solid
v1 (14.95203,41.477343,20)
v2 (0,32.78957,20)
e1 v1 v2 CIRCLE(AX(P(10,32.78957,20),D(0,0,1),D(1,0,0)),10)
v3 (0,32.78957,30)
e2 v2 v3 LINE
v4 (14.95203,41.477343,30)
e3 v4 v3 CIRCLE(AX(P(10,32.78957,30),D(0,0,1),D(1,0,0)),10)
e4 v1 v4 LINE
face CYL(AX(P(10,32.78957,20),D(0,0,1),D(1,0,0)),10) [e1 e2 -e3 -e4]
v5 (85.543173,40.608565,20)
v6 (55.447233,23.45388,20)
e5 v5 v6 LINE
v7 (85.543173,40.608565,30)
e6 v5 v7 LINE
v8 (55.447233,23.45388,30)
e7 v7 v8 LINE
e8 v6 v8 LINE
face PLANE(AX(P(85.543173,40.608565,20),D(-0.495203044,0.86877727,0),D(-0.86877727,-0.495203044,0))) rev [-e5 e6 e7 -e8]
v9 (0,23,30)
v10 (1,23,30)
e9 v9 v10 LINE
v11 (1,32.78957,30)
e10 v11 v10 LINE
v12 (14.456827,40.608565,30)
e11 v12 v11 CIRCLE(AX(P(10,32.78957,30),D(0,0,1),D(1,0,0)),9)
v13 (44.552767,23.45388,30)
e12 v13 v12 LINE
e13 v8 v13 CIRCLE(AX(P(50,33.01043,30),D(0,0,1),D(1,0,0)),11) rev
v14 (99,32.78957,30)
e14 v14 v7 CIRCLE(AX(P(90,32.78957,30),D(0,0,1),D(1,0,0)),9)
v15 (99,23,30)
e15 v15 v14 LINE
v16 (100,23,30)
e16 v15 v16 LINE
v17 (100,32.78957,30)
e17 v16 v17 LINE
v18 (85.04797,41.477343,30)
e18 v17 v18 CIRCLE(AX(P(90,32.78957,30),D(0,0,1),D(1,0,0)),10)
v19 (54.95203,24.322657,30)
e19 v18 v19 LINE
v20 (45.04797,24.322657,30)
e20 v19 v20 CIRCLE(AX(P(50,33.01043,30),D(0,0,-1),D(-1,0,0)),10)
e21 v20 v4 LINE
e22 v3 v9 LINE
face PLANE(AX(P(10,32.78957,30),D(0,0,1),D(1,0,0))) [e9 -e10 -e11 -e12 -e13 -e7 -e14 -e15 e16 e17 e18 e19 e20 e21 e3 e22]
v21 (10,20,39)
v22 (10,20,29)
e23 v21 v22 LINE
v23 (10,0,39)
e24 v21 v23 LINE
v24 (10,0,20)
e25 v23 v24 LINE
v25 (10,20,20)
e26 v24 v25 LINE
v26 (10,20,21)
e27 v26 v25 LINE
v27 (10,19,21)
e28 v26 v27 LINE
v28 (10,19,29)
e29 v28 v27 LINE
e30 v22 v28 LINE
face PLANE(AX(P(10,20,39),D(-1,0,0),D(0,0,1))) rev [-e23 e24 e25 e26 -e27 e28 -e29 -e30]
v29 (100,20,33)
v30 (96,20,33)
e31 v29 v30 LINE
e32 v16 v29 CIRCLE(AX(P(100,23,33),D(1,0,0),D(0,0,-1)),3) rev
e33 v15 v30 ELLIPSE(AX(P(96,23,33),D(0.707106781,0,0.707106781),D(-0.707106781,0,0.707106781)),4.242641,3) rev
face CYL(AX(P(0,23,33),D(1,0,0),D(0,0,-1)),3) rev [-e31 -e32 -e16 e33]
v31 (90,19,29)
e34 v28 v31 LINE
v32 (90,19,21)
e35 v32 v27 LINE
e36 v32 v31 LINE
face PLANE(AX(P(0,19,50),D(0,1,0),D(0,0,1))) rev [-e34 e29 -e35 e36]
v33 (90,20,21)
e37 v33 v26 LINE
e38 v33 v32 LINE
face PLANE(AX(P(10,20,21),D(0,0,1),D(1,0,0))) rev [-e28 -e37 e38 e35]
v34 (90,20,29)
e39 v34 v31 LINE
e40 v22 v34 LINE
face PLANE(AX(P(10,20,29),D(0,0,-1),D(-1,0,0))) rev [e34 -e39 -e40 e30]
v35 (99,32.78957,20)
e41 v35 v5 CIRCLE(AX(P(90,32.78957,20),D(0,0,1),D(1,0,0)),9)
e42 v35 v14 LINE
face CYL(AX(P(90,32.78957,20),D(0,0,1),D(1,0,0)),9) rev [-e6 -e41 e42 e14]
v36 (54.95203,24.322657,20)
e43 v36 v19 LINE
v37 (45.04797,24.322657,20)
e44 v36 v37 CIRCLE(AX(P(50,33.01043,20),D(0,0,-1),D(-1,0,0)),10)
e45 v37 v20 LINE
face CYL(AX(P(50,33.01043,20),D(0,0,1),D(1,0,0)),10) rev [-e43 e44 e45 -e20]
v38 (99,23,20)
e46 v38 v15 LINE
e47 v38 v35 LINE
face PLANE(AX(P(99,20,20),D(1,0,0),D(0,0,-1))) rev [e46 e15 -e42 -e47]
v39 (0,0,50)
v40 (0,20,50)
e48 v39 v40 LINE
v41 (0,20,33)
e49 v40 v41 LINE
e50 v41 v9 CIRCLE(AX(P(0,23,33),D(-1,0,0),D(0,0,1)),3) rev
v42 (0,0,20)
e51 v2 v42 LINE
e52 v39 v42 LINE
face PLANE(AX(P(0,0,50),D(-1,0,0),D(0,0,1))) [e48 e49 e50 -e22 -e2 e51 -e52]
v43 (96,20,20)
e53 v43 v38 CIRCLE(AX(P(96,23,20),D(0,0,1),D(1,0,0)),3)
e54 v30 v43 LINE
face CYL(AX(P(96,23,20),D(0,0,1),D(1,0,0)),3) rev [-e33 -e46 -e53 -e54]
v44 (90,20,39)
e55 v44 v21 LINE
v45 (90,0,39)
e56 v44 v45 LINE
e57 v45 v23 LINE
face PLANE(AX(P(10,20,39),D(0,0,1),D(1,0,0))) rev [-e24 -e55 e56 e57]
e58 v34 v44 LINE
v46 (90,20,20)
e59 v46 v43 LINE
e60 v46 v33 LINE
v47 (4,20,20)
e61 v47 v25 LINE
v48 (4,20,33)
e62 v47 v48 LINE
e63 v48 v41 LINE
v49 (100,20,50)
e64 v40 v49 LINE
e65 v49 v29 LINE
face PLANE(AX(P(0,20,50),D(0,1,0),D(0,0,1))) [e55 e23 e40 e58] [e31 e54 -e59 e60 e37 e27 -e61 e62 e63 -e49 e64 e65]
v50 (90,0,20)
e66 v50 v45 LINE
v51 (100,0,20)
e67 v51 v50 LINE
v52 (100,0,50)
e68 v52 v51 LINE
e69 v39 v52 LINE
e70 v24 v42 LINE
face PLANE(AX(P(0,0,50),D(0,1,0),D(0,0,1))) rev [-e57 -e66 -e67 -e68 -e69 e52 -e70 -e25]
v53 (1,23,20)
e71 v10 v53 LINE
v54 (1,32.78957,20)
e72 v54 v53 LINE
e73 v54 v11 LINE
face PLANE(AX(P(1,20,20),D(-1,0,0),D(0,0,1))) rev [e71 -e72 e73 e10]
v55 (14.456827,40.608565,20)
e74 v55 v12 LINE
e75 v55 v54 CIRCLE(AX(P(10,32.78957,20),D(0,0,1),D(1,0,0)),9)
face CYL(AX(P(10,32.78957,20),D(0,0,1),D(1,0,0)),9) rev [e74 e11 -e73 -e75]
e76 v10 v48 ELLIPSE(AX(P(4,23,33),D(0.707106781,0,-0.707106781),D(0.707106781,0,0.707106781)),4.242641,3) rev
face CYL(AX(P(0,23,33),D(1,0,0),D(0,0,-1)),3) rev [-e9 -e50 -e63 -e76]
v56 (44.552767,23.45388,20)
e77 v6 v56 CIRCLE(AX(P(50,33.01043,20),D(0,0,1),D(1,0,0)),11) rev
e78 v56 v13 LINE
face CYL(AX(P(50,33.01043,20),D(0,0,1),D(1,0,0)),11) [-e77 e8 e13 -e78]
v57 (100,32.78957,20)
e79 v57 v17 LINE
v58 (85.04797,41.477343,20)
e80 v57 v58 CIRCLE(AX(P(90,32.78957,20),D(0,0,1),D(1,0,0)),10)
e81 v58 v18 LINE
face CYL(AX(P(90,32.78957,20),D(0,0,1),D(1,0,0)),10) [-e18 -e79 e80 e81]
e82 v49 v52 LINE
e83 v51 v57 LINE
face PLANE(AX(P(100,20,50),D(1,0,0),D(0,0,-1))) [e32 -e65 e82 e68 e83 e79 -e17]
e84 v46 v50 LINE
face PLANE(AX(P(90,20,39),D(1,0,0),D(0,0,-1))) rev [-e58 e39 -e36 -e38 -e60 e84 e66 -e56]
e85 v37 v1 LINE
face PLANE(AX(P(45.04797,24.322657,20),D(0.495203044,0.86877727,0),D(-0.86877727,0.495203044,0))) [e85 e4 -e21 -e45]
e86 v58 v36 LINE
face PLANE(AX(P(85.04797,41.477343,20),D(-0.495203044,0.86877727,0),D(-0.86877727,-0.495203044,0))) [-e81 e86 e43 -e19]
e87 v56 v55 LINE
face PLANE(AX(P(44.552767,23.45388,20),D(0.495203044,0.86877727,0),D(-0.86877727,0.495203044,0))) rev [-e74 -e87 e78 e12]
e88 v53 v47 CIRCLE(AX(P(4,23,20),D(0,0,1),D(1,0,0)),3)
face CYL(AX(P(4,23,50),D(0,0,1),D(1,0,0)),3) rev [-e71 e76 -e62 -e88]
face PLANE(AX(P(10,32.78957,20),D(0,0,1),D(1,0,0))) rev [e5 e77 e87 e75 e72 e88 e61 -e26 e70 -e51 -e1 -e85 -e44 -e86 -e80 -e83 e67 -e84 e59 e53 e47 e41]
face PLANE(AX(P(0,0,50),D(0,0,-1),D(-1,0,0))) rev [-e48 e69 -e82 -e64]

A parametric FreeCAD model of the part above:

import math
import FreeCAD as App
import Part
import Sketcher
from FreeCAD import Vector
Q = App.Units.Quantity


def edges_at(feature, points):
    """Names of the edges that pass closest to the given points."""
    edges = feature.Shape.Edges
    near = lambda p: min(range(len(edges)), key=lambda i: edges[i].distToShape(Part.Vertex(*p))[0])
    return sorted({f"Edge{near(p) + 1}" for p in points})

doc = App.newDocument("Part")
body = doc.addObject("PartDesign::Body", "Body")

sketch1 = body.newObject("Sketcher::SketchObject", "Sketch")
sketch1.AttachmentSupport = (doc.getObject("XY_Plane"), [""])
sketch1.MapMode = "FlatFace"
sketch1.addGeometry(Part.LineSegment(Vector(0, 20, 0), Vector(0, 0, 0)), False)
sketch1.addGeometry(Part.LineSegment(Vector(0, 0, 0), Vector(100, 0, 0)), False)
sketch1.addGeometry(Part.LineSegment(Vector(100, 0, 0), Vector(100, 20, 0)), False)
sketch1.addGeometry(Part.LineSegment(Vector(100, 20, 0), Vector(0, 20, 0)), False)
sketch1.addConstraint(Sketcher.Constraint("Coincident", 0, 2, 1, 1))
sketch1.addConstraint(Sketcher.Constraint("Coincident", 1, 2, 2, 1))
sketch1.addConstraint(Sketcher.Constraint("Coincident", 2, 2, 3, 1))
sketch1.addConstraint(Sketcher.Constraint("Coincident", 3, 2, 0, 1))
sketch1.addConstraint(Sketcher.Constraint("Vertical", 0))
sketch1.addConstraint(Sketcher.Constraint("Horizontal", 1))
sketch1.addConstraint(Sketcher.Constraint("Vertical", 2))
sketch1.addConstraint(Sketcher.Constraint("Horizontal", 3))
sketch1.addConstraint(Sketcher.Constraint("Coincident", 0, 2, -1, 1))
sketch1.addConstraint(Sketcher.Constraint("DistanceX", 1, 1, 1, 2, Q("100 mm")))
sketch1.addConstraint(Sketcher.Constraint("DistanceY", 0, 2, 0, 1, Q("20 mm")))
pad1 = body.newObject("PartDesign::Pad", "Pad")
pad1.Profile = sketch1
pad1.Length = 50

sketch2 = body.newObject("Sketcher::SketchObject", "Sketch001")
sketch2.AttachmentSupport = (doc.getObject("XZ_Plane"), [""])
sketch2.MapMode = "FlatFace"
sketch2.addGeometry(Part.LineSegment(Vector(10, 39, 0), Vector(10, 29, 0)), False)
sketch2.addGeometry(Part.LineSegment(Vector(10, 29, 0), Vector(90, 29, 0)), False)
sketch2.addGeometry(Part.LineSegment(Vector(90, 29, 0), Vector(90, 39, 0)), False)
sketch2.addGeometry(Part.LineSegment(Vector(90, 39, 0), Vector(10, 39, 0)), False)
sketch2.addGeometry(Part.LineSegment(Vector(10, 21, 0), Vector(10, 11, 0)), False)
sketch2.addGeometry(Part.LineSegment(Vector(10, 11, 0), Vector(90, 11, 0)), False)
sketch2.addGeometry(Part.LineSegment(Vector(90, 11, 0), Vector(90, 21, 0)), False)
sketch2.addGeometry(Part.LineSegment(Vector(90, 21, 0), Vector(10, 21, 0)), False)
sketch2.addConstraint(Sketcher.Constraint("Coincident", 0, 2, 1, 1))
sketch2.addConstraint(Sketcher.Constraint("Coincident", 1, 2, 2, 1))
sketch2.addConstraint(Sketcher.Constraint("Coincident", 2, 2, 3, 1))
sketch2.addConstraint(Sketcher.Constraint("Coincident", 3, 2, 0, 1))
sketch2.addConstraint(Sketcher.Constraint("Coincident", 4, 2, 5, 1))
sketch2.addConstraint(Sketcher.Constraint("Coincident", 5, 2, 6, 1))
sketch2.addConstraint(Sketcher.Constraint("Coincident", 6, 2, 7, 1))
sketch2.addConstraint(Sketcher.Constraint("Coincident", 7, 2, 4, 1))
sketch2.addConstraint(Sketcher.Constraint("Vertical", 0))
sketch2.addConstraint(Sketcher.Constraint("Horizontal", 1))
sketch2.addConstraint(Sketcher.Constraint("Vertical", 2))
sketch2.addConstraint(Sketcher.Constraint("Horizontal", 3))
sketch2.addConstraint(Sketcher.Constraint("Vertical", 4))
sketch2.addConstraint(Sketcher.Constraint("Horizontal", 5))
sketch2.addConstraint(Sketcher.Constraint("Vertical", 6))
sketch2.addConstraint(Sketcher.Constraint("Horizontal", 7))
sketch2.addConstraint(Sketcher.Constraint("Vertical", 3, 2, 4, 2))
sketch2.addConstraint(Sketcher.Constraint("Vertical", 2, 2, 5, 2))
sketch2.addConstraint(Sketcher.Constraint("Equal", 2, 4))
sketch2.addConstraint(Sketcher.Constraint("DistanceX", 1, 1, 1, 2, Q("80 mm")))
sketch2.addConstraint(Sketcher.Constraint("DistanceY", 0, 2, 0, 1, Q("10 mm")))
sketch2.addConstraint(Sketcher.Constraint("DistanceX", -1, 1, 0, 2, Q("10 mm")))
sketch2.addConstraint(Sketcher.Constraint("DistanceY", -1, 1, 0, 2, Q("29 mm")))
sketch2.addConstraint(Sketcher.Constraint("DistanceY", -1, 1, 4, 2, Q("11 mm")))
pocket1 = body.newObject("PartDesign::Pocket", "Pocket")
pocket1.Profile = sketch2
pocket1.Type = "ThroughAll"

sketch3 = body.newObject("Sketcher::SketchObject", "Sketch002")
sketch3.AttachmentSupport = (doc.getObject("XZ_Plane"), [""])
sketch3.MapMode = "FlatFace"
sketch3.addGeometry(Part.LineSegment(Vector(10, 34, 0), Vector(10, 16, 0)), False)
sketch3.addGeometry(Part.LineSegment(Vector(10, 16, 0), Vector(90, 16, 0)), False)
sketch3.addGeometry(Part.LineSegment(Vector(90, 16, 0), Vector(90, 34, 0)), False)
sketch3.addGeometry(Part.LineSegment(Vector(90, 34, 0), Vector(10, 34, 0)), False)
sketch3.addConstraint(Sketcher.Constraint("Coincident", 0, 2, 1, 1))
sketch3.addConstraint(Sketcher.Constraint("Coincident", 1, 2, 2, 1))
sketch3.addConstraint(Sketcher.Constraint("Coincident", 2, 2, 3, 1))
sketch3.addConstraint(Sketcher.Constraint("Coincident", 3, 2, 0, 1))
sketch3.addConstraint(Sketcher.Constraint("Vertical", 0))
sketch3.addConstraint(Sketcher.Constraint("Horizontal", 1))
sketch3.addConstraint(Sketcher.Constraint("Vertical", 2))
sketch3.addConstraint(Sketcher.Constraint("Horizontal", 3))
sketch3.addConstraint(Sketcher.Constraint("DistanceX", 1, 1, 1, 2, Q("80 mm")))
sketch3.addConstraint(Sketcher.Constraint("DistanceY", 0, 2, 0, 1, Q("18 mm")))
sketch3.addConstraint(Sketcher.Constraint("DistanceX", -1, 1, 0, 2, Q("10 mm")))
sketch3.addConstraint(Sketcher.Constraint("DistanceY", -1, 1, 0, 2, Q("16 mm")))
pocket2 = body.newObject("PartDesign::Pocket", "Pocket001")
pocket2.Profile = sketch3
pocket2.Length = 19

sketch4 = body.newObject("Sketcher::SketchObject", "Sketch003")
sketch4.AttachmentSupport = (doc.getObject("XY_Plane"), [""])
sketch4.MapMode = "FlatFace"
sketch4.AttachmentOffset = App.Placement(Vector(0, 0, 25), App.Rotation())
sketch4.addGeometry(Part.LineSegment(Vector(0, 32.8, 0), Vector(0, 20, 0)), False)
sketch4.addGeometry(Part.LineSegment(Vector(0, 20, 0), Vector(1, 20, 0)), False)
sketch4.addGeometry(Part.LineSegment(Vector(1, 20, 0), Vector(1, 32.8, 0)), False)
sketch4.addGeometry(Part.ArcOfCircle(Part.Circle(Vector(10, 32.8, 0), Vector(0, 0, 1), 9), math.radians(60), math.radians(180)), False)
sketch4.addGeometry(Part.LineSegment(Vector(14.5, 40.6, 0), Vector(44.6, 23.5, 0)), False)
sketch4.addGeometry(Part.ArcOfCircle(Part.Circle(Vector(50, 33, 0), Vector(0, 0, 1), 11), math.radians(-120), math.radians(-60)), False)
sketch4.addGeometry(Part.LineSegment(Vector(55.4, 23.5, 0), Vector(85.5, 40.6, 0)), False)
sketch4.addGeometry(Part.ArcOfCircle(Part.Circle(Vector(90, 32.8, 0), Vector(0, 0, 1), 9), math.radians(0), math.radians(120)), False)
sketch4.addGeometry(Part.LineSegment(Vector(99, 32.8, 0), Vector(99, 20, 0)), False)
sketch4.addGeometry(Part.LineSegment(Vector(99, 20, 0), Vector(100, 20, 0)), False)
sketch4.addGeometry(Part.LineSegment(Vector(100, 20, 0), Vector(100, 32.8, 0)), False)
sketch4.addGeometry(Part.ArcOfCircle(Part.Circle(Vector(90, 32.8, 0), Vector(0, 0, 1), 10), math.radians(0), math.radians(120)), False)
sketch4.addGeometry(Part.LineSegment(Vector(85, 41.5, 0), Vector(55, 24.3, 0)), False)
sketch4.addGeometry(Part.ArcOfCircle(Part.Circle(Vector(50, 33, 0), Vector(0, 0, 1), 10), math.radians(-120), math.radians(-60)), False)
sketch4.addGeometry(Part.LineSegment(Vector(45, 24.3, 0), Vector(15, 41.5, 0)), False)
sketch4.addGeometry(Part.ArcOfCircle(Part.Circle(Vector(10, 32.8, 0), Vector(0, 0, 1), 10), math.radians(60), math.radians(180)), False)
sketch4.addConstraint(Sketcher.Constraint("Coincident", 0, 2, 1, 1))
sketch4.addConstraint(Sketcher.Constraint("Coincident", 1, 2, 2, 1))
sketch4.addConstraint(Sketcher.Constraint("Tangent", 2, 2, 3, 2))
sketch4.addConstraint(Sketcher.Constraint("Tangent", 3, 1, 4, 1))
sketch4.addConstraint(Sketcher.Constraint("Tangent", 4, 2, 5, 1))
sketch4.addConstraint(Sketcher.Constraint("Tangent", 5, 2, 6, 1))
sketch4.addConstraint(Sketcher.Constraint("Tangent", 6, 2, 7, 2))
sketch4.addConstraint(Sketcher.Constraint("Tangent", 7, 1, 8, 1))
sketch4.addConstraint(Sketcher.Constraint("Coincident", 8, 2, 9, 1))
sketch4.addConstraint(Sketcher.Constraint("Coincident", 9, 2, 10, 1))
sketch4.addConstraint(Sketcher.Constraint("Tangent", 10, 2, 11, 1))
sketch4.addConstraint(Sketcher.Constraint("Tangent", 11, 2, 12, 1))
sketch4.addConstraint(Sketcher.Constraint("Tangent", 12, 2, 13, 2))
sketch4.addConstraint(Sketcher.Constraint("Tangent", 13, 1, 14, 1))
sketch4.addConstraint(Sketcher.Constraint("Tangent", 14, 2, 15, 1))
sketch4.addConstraint(Sketcher.Constraint("Tangent", 15, 2, 0, 1))
sketch4.addConstraint(Sketcher.Constraint("Vertical", 0))
sketch4.addConstraint(Sketcher.Constraint("Horizontal", 1))
sketch4.addConstraint(Sketcher.Constraint("Vertical", 2))
sketch4.addConstraint(Sketcher.Constraint("Vertical", 8))
sketch4.addConstraint(Sketcher.Constraint("Horizontal", 9))
sketch4.addConstraint(Sketcher.Constraint("Vertical", 10))
sketch4.addConstraint(Sketcher.Constraint("Coincident", 11, 3, 7, 3))
sketch4.addConstraint(Sketcher.Constraint("Coincident", 13, 3, 5, 3))
sketch4.addConstraint(Sketcher.Constraint("Coincident", 15, 3, 3, 3))
sketch4.addConstraint(Sketcher.Constraint("Equal", 3, 7))
sketch4.addConstraint(Sketcher.Constraint("Equal", 11, 13))
sketch4.addConstraint(Sketcher.Constraint("Equal", 13, 15))
sketch4.addConstraint(Sketcher.Constraint("PointOnObject", 0, 2, -2))
sketch4.addConstraint(Sketcher.Constraint("Parallel", 6, 12))
sketch4.addConstraint(Sketcher.Constraint("Horizontal", 3, 3, 7, 3))
sketch4.addConstraint(Sketcher.Constraint("Horizontal", 4, 2, 5, 2))
sketch4.addConstraint(Sketcher.Constraint("Horizontal", 1, 2, 8, 2))
sketch4.addConstraint(Sketcher.Constraint("Radius", 3, Q("9 mm")))
sketch4.addConstraint(Sketcher.Constraint("Radius", 5, Q("11 mm")))
sketch4.addConstraint(Sketcher.Constraint("DistanceX", -1, 1, 5, 3, Q("50 mm")))
sketch4.addConstraint(Sketcher.Constraint("DistanceY", -1, 1, 0, 2, Q("20 mm")))
sketch4.addConstraint(Sketcher.Constraint("DistanceY", 0, 2, 0, 1, Q("12.78957 mm")))
sketch4.addConstraint(Sketcher.Constraint("DistanceY", -1, 1, 5, 3, Q("33.01043 mm")))
pad2 = body.newObject("PartDesign::Pad", "Pad001")
pad2.Profile = sketch4
pad2.Type = "TwoLengths"
pad2.Length = 5
pad2.Length2 = 5

sketch5 = body.newObject("Sketcher::SketchObject", "Sketch004")
sketch5.AttachmentSupport = (doc.getObject("XY_Plane"), [""])
sketch5.MapMode = "FlatFace"
sketch5.addGeometry(Part.LineSegment(Vector(100, 20, 0), Vector(100, 0, 0)), False)
sketch5.addGeometry(Part.LineSegment(Vector(100, 0, 0), Vector(0, 0, 0)), False)
sketch5.addGeometry(Part.LineSegment(Vector(0, 0, 0), Vector(0, 20, 0)), False)
sketch5.addGeometry(Part.LineSegment(Vector(0, 20, 0), Vector(100, 20, 0)), False)
sketch5.addConstraint(Sketcher.Constraint("Coincident", 0, 2, 1, 1))
sketch5.addConstraint(Sketcher.Constraint("Coincident", 1, 2, 2, 1))
sketch5.addConstraint(Sketcher.Constraint("Coincident", 2, 2, 3, 1))
sketch5.addConstraint(Sketcher.Constraint("Coincident", 3, 2, 0, 1))
sketch5.addConstraint(Sketcher.Constraint("Vertical", 0))
sketch5.addConstraint(Sketcher.Constraint("Horizontal", 1))
sketch5.addConstraint(Sketcher.Constraint("Vertical", 2))
sketch5.addConstraint(Sketcher.Constraint("Horizontal", 3))
sketch5.addConstraint(Sketcher.Constraint("Coincident", 1, 2, -1, 1))
sketch5.addConstraint(Sketcher.Constraint("DistanceX", 1, 2, 1, 1, Q("100 mm")))
sketch5.addConstraint(Sketcher.Constraint("DistanceY", 0, 2, 0, 1, Q("20 mm")))
pocket3 = body.newObject("PartDesign::Pocket", "Pocket002")
pocket3.Profile = sketch5
pocket3.Length = 20
pocket3.Reversed = True
doc.recompute()

fillet = body.newObject("PartDesign::Fillet", "Fillet")
fillet.Base = (pocket3, edges_at(pocket3, [
    (99.5, 20, 30),
    (99, 20, 25),
    (1, 20, 25),
    (0.5, 20, 30),
]))
fillet.Radius = 3

doc.recompute()
